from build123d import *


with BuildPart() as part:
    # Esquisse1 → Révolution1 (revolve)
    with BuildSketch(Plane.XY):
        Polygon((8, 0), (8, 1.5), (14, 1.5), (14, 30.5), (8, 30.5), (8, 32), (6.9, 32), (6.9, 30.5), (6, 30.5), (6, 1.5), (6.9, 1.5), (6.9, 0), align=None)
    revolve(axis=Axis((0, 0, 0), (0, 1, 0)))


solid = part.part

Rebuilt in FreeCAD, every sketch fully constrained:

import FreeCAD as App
import Part
import Sketcher

V = App.Vector
Q = App.Units.Quantity

doc = App.newDocument("Part")
body = doc.addObject("PartDesign::Body", "Body")

sketch1 = body.newObject("Sketcher::SketchObject", "Sketch")
sketch1.AttachmentSupport = (doc.getObject("XY_Plane"), [""])
sketch1.MapMode = "FlatFace"
sketch1.addGeometry([
    Part.LineSegment(V(8, 0, 0), V(8, 1.5, 0)),
    Part.LineSegment(V(8, 1.5, 0), V(14, 1.5, 0)),
    Part.LineSegment(V(14, 1.5, 0), V(14, 30.5, 0)),
    Part.LineSegment(V(14, 30.5, 0), V(8, 30.5, 0)),
    Part.LineSegment(V(8, 30.5, 0), V(8, 32, 0)),
    Part.LineSegment(V(8, 32, 0), V(6.9, 32, 0)),
    Part.LineSegment(V(6.9, 32, 0), V(6.9, 30.5, 0)),
    Part.LineSegment(V(6.9, 30.5, 0), V(6, 30.5, 0)),
    Part.LineSegment(V(6, 30.5, 0), V(6, 1.5, 0)),
    Part.LineSegment(V(6, 1.5, 0), V(6.9, 1.5, 0)),
    Part.LineSegment(V(6.9, 1.5, 0), V(6.9, 0, 0)),
    Part.LineSegment(V(6.9, 0, 0), V(8, 0, 0)),
], False)
sketch1.addConstraint([
    Sketcher.Constraint("Coincident", 0, 2, 1, 1),
    Sketcher.Constraint("Coincident", 1, 2, 2, 1),
    Sketcher.Constraint("Coincident", 2, 2, 3, 1),
    Sketcher.Constraint("Coincident", 3, 2, 4, 1),
    Sketcher.Constraint("Coincident", 4, 2, 5, 1),
    Sketcher.Constraint("Coincident", 5, 2, 6, 1),
    Sketcher.Constraint("Coincident", 6, 2, 7, 1),
    Sketcher.Constraint("Coincident", 7, 2, 8, 1),
    Sketcher.Constraint("Coincident", 8, 2, 9, 1),
    Sketcher.Constraint("Coincident", 9, 2, 10, 1),
    Sketcher.Constraint("Coincident", 10, 2, 11, 1),
    Sketcher.Constraint("Coincident", 11, 2, 0, 1),
    Sketcher.Constraint("Vertical", 0),
    Sketcher.Constraint("Horizontal", 1),
    Sketcher.Constraint("Vertical", 2),
    Sketcher.Constraint("Horizontal", 3),
    Sketcher.Constraint("Vertical", 4),
    Sketcher.Constraint("Horizontal", 5),
    Sketcher.Constraint("Vertical", 6),
    Sketcher.Constraint("Horizontal", 7),
    Sketcher.Constraint("Vertical", 8),
    Sketcher.Constraint("Horizontal", 9),
    Sketcher.Constraint("Vertical", 10),
    Sketcher.Constraint("Horizontal", 11),
    Sketcher.Constraint("PointOnObject", 10, 2, -1),
    Sketcher.Constraint("Horizontal", 3, 2, 6, 2),
    Sketcher.Constraint("Horizontal", 1, 2, 8, 2),
    Sketcher.Constraint("Vertical", 0, 2, 3, 2),
    Sketcher.Constraint("Vertical", 6, 2, 9, 2),
    Sketcher.Constraint("Equal", 0, 4),
    Sketcher.Constraint("DistanceX", 1, 1, 1, 2, Q("6 mm")),
    Sketcher.Constraint("DistanceY", 2, 1, 2, 2, Q("29 mm")),
    Sketcher.Constraint("DistanceX", 5, 2, 5, 1, Q("1.1 mm")),
    Sketcher.Constraint("DistanceX", 7, 2, 7, 1, Q("0.9 mm")),
    Sketcher.Constraint("DistanceY", 0, 1, 0, 2, Q("1.5 mm")),
    Sketcher.Constraint("DistanceX", -1, 1, 0, 2, Q("8 mm")),
])
revolution = body.newObject("PartDesign::Revolution", "Revolution")
revolution.Profile = sketch1
revolution.ReferenceAxis = (sketch1, ["V_Axis"])
revolution.Angle = 360

doc.recompute()
